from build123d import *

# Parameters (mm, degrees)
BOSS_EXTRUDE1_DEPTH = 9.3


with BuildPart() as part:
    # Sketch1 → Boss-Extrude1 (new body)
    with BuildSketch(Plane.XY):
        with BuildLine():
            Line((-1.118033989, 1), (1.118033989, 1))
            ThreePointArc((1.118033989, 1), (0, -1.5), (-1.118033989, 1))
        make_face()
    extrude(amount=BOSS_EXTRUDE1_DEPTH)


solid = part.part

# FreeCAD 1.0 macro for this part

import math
import FreeCAD as App
import Part
import Sketcher
from FreeCAD import Vector
Q = App.Units.Quantity

doc = App.newDocument("Part")
body = doc.addObject("PartDesign::Body", "Body")

sketch1 = body.newObject("Sketcher::SketchObject", "Sketch")
sketch1.AttachmentSupport = (doc.getObject("XY_Plane"), [""])
sketch1.MapMode = "FlatFace"
sketch1.addGeometry([
    Part.LineSegment(Vector(1.1, 1, 0), Vector(-1.1, 1, 0)),
    Part.ArcOfCircle(Part.Circle(Vector(0, 0, 0), Vector(0, 0, 1), 1.5), math.radians(138), math.radians(402)),
], False)
sketch1.addConstraint([
    Sketcher.Constraint("Coincident", 0, 1, 1, 2),
    Sketcher.Constraint("Coincident", 1, 1, 0, 2),
    Sketcher.Constraint("Horizontal", 0),
    Sketcher.Constraint("Coincident", 1, 3, -1, 1),
    Sketcher.Constraint("Radius", 1, Q("1.5 mm")),
    Sketcher.Constraint("DistanceY", -1, 1, 0, 1, Q("1 mm")),
])
pad1 = body.newObject("PartDesign::Pad", "Pad")
pad1.Profile = sketch1
pad1.Length = 9.3

doc.recompute()
